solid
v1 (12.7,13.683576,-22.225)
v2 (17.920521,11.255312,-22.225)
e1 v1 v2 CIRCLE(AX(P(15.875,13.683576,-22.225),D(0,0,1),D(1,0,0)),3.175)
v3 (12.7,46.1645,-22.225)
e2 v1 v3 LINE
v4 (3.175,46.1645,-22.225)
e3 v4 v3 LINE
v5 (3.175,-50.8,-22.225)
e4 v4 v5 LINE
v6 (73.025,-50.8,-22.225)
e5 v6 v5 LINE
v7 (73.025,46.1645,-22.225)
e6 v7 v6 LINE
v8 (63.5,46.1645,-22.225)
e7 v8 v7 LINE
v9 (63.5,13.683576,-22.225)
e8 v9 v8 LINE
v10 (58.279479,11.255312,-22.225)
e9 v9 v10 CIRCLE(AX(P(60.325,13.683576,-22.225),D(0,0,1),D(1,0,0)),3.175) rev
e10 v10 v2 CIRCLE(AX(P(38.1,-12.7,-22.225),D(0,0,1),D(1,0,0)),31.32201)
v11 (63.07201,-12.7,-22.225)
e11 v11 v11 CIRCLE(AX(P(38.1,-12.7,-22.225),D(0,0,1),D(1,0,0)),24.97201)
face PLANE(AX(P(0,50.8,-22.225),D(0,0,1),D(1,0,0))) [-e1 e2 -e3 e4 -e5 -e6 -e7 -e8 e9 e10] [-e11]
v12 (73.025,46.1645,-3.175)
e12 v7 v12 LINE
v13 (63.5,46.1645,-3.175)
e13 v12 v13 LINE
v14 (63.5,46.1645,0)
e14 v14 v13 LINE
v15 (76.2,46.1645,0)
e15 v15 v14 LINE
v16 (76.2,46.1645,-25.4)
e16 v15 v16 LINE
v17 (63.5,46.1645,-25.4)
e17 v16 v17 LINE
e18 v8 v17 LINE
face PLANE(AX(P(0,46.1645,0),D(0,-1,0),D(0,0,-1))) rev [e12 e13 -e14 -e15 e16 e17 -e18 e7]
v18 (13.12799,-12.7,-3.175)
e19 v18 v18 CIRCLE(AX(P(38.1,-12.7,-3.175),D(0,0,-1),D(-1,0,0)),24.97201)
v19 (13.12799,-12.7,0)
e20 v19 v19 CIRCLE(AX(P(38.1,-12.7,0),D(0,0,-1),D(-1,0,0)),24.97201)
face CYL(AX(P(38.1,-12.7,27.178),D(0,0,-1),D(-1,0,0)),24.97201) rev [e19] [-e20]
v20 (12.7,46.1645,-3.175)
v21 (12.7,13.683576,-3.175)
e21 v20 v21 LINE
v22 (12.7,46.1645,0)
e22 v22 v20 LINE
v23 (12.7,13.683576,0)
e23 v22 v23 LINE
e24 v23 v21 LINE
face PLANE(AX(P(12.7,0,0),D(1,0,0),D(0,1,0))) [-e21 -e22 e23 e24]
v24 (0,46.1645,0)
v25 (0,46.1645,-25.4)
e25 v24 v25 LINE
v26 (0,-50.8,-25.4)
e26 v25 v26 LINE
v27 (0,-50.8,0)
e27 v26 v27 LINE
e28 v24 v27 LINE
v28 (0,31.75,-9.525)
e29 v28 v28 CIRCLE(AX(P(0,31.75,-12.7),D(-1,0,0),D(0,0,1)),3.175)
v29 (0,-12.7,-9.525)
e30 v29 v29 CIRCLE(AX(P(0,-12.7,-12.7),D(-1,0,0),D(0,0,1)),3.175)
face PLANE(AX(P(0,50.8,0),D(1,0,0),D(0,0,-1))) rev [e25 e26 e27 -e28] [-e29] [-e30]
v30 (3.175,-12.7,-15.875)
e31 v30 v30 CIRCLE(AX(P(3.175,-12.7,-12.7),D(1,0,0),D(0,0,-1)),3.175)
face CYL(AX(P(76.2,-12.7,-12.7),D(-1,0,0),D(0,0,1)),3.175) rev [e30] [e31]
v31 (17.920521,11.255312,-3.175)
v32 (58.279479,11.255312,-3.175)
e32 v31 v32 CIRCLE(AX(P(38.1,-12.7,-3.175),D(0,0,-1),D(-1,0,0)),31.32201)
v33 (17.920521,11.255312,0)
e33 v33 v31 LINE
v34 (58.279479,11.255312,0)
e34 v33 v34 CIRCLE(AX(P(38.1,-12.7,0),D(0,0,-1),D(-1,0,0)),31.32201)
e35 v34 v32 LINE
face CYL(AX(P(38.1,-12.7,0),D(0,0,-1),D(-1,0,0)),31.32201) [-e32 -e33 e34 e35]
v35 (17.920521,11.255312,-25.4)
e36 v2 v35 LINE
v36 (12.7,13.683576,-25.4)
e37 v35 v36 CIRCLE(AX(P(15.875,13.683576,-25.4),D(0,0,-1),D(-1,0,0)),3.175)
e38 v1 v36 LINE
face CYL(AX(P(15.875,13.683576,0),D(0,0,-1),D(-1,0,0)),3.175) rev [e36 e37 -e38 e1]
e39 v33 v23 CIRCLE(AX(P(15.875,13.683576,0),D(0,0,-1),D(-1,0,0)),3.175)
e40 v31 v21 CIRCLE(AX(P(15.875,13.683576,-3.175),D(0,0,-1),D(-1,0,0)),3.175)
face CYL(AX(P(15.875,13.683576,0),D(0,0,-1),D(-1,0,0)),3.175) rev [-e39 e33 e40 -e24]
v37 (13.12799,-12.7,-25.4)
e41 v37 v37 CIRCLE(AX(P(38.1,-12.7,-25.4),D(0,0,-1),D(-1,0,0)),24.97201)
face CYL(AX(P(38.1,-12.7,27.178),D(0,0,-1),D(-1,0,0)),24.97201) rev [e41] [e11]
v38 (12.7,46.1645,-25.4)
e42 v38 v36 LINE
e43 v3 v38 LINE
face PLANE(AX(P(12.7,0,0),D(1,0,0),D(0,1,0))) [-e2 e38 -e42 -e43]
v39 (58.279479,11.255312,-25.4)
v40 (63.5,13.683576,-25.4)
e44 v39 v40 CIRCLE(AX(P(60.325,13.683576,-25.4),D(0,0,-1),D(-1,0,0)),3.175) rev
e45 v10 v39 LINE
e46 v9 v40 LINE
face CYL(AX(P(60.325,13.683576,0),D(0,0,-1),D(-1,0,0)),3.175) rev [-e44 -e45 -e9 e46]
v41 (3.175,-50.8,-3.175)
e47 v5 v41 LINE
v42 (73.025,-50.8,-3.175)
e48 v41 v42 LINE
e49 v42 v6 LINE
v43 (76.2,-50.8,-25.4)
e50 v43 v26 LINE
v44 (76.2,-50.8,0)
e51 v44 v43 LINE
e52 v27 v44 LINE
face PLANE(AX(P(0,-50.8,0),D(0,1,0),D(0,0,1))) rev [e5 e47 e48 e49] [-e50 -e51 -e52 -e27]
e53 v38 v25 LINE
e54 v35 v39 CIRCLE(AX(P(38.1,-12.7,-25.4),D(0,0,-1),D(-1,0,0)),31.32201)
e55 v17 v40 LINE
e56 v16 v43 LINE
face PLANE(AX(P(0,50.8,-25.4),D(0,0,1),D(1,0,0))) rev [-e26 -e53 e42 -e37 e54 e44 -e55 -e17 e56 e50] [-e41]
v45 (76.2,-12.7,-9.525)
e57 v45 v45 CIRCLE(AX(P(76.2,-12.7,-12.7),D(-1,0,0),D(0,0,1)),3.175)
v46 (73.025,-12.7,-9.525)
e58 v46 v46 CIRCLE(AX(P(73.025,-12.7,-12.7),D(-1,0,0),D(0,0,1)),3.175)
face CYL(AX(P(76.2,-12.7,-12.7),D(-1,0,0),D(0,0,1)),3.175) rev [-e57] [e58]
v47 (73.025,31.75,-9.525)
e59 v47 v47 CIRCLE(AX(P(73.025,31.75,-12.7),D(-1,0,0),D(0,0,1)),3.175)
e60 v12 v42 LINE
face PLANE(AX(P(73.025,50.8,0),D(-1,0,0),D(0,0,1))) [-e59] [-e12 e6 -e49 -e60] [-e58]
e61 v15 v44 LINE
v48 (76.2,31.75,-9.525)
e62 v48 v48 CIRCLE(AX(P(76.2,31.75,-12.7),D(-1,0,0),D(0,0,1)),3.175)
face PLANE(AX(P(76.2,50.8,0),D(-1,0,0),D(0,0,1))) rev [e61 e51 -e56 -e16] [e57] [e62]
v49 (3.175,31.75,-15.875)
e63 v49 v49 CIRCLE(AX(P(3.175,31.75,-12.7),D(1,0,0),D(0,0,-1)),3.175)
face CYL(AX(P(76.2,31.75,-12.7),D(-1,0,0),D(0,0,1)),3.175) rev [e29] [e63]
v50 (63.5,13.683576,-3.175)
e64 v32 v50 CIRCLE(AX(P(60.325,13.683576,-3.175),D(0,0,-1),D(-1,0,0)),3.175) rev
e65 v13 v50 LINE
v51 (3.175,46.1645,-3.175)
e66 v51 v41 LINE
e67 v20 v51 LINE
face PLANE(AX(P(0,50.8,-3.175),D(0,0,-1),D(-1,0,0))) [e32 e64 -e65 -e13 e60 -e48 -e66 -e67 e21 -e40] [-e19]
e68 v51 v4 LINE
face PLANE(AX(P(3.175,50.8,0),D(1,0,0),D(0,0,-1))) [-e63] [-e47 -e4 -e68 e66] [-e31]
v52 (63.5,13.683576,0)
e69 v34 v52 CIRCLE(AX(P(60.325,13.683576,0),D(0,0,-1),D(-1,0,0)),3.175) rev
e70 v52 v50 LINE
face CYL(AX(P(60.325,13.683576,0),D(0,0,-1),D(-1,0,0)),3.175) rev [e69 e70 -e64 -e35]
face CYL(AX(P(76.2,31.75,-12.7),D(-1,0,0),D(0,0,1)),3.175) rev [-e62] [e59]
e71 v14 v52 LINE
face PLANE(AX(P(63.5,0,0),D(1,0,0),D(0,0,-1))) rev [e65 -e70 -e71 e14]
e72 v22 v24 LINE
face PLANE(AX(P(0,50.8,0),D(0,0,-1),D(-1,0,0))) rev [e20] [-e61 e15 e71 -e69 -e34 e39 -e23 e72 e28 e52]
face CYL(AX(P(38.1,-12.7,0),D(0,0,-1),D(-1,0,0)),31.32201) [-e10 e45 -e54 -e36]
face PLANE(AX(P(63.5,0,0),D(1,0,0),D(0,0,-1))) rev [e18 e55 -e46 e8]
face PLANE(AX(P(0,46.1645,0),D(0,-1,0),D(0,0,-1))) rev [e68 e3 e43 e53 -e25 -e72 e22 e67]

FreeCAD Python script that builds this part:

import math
import FreeCAD as App
import Part
import Sketcher
from FreeCAD import Vector
Q = App.Units.Quantity


def add_polygon(sketch, points):
    """Adds a closed chain of lines whose ends are joined by coincident constraints."""
    first, n = sketch.GeometryCount, len(points)
    for a, b in zip(points, points[1:] + points[:1]):
        sketch.addGeometry(Part.LineSegment(App.Vector(*a, 0), App.Vector(*b, 0)), False)
    for i in range(n):
        sketch.addConstraint(Sketcher.Constraint("Coincident", first + i, 2, first + (i + 1) % n, 1))

doc = App.newDocument("Part")
body = doc.addObject("PartDesign::Body", "Body")

sketch1 = body.newObject("Sketcher::SketchObject", "Sketch")
sketch1.AttachmentSupport = (doc.getObject("XZ_Plane"), [""])
sketch1.MapMode = "FlatFace"
add_polygon(sketch1, [(0, -25), (0, 0), (76, 0), (76, -25)])
add_polygon(sketch1, [(73, -3), (3, -3), (3, -22), (73, -22)])
sketch1.addConstraint(Sketcher.Constraint("Vertical", 0))
sketch1.addConstraint(Sketcher.Constraint("Horizontal", 1))
sketch1.addConstraint(Sketcher.Constraint("Vertical", 2))
sketch1.addConstraint(Sketcher.Constraint("Horizontal", 3))
sketch1.addConstraint(Sketcher.Constraint("Horizontal", 4))
sketch1.addConstraint(Sketcher.Constraint("Vertical", 5))
sketch1.addConstraint(Sketcher.Constraint("Horizontal", 6))
sketch1.addConstraint(Sketcher.Constraint("Vertical", 7))
sketch1.addConstraint(Sketcher.Constraint("Coincident", 0, 2, -1, 1))
sketch1.addConstraint(Sketcher.Constraint("DistanceX", 1, 1, 1, 2, Q("3 in")))
sketch1.addConstraint(Sketcher.Constraint("DistanceY", 0, 1, 0, 2, Q("1 in")))
sketch1.addConstraint(Sketcher.Constraint("DistanceX", 4, 2, 4, 1, Q("2.75 in")))
sketch1.addConstraint(Sketcher.Constraint("DistanceY", 5, 2, 5, 1, Q("0.75 in")))
sketch1.addConstraint(Sketcher.Constraint("DistanceX", -1, 1, 4, 2, Q("0.125 in")))
sketch1.addConstraint(Sketcher.Constraint("DistanceY", 4, 2, -1, 1, Q("0.125 in")))
pad1 = body.newObject("PartDesign::Pad", "Pad")
pad1.Profile = sketch1
pad1.Length = Q("4 in")
pad1.Midplane = True

sketch2 = body.newObject("Sketcher::SketchObject", "Sketch001")
sketch2.AttachmentSupport = (doc.getObject("XY_Plane"), [""])
sketch2.MapMode = "FlatFace"
sketch2.AttachmentOffset = App.Placement(Vector(0, 0, -1 * 25.4), App.Rotation())
sketch2.addGeometry(Part.Circle(Vector(38, -13, 0), Vector(0, 0, 1), 25), False)
sketch2.addConstraint(Sketcher.Constraint("Diameter", 0, Q("1.9663 in")))
sketch2.addConstraint(Sketcher.Constraint("DistanceX", -1, 1, 0, 3, Q("1.5 in")))
sketch2.addConstraint(Sketcher.Constraint("DistanceY", 0, 3, -1, 1, Q("0.5 in")))
pocket1 = body.newObject("PartDesign::Pocket", "Pocket")
pocket1.Profile = sketch2
pocket1.Length = Q("2.07 in")
pocket1.Reversed = True

sketch3 = body.newObject("Sketcher::SketchObject", "Sketch002")
sketch3.AttachmentSupport = (doc.getObject("XY_Plane"), [""])
sketch3.MapMode = "FlatFace"
sketch3.AttachmentOffset = App.Placement(Vector(0, 0, -1 * 25.4), App.Rotation())
sketch3.addGeometry(Part.LineSegment(Vector(0, 50.8, 0), Vector(76.2, 50.8, 0)), False)
sketch3.addGeometry(Part.LineSegment(Vector(76.2, 50.8, 0), Vector(76.2, 46.2, 0)), False)
sketch3.addGeometry(Part.LineSegment(Vector(76.2, 46.2, 0), Vector(63.5, 46.2, 0)), False)
sketch3.addGeometry(Part.LineSegment(Vector(63.5, 46.2, 0), Vector(63.5, 13.7, 0)), False)
sketch3.addGeometry(Part.ArcOfCircle(Part.Circle(Vector(60.3, 13.7, 0), Vector(0, 0, 1), 3.2), math.radians(-130), math.radians(0)), False)
sketch3.addGeometry(Part.ArcOfCircle(Part.Circle(Vector(38.1, -12.7, 0), Vector(0, 0, 1), 31.3), math.radians(50), math.radians(130)), False)
sketch3.addGeometry(Part.ArcOfCircle(Part.Circle(Vector(15.9, 13.7, 0), Vector(0, 0, 1), 3.2), math.radians(180), math.radians(310)), False)
sketch3.addGeometry(Part.LineSegment(Vector(12.7, 13.7, 0), Vector(12.7, 46.2, 0)), False)
sketch3.addGeometry(Part.LineSegment(Vector(12.7, 46.2, 0), Vector(0, 46.2, 0)), False)
sketch3.addGeometry(Part.LineSegment(Vector(0, 46.2, 0), Vector(0, 50.8, 0)), False)
sketch3.addConstraint(Sketcher.Constraint("Coincident", 0, 2, 1, 1))
sketch3.addConstraint(Sketcher.Constraint("Coincident", 1, 2, 2, 1))
sketch3.addConstraint(Sketcher.Constraint("Coincident", 2, 2, 3, 1))
sketch3.addConstraint(Sketcher.Constraint("Tangent", 3, 2, 4, 2))
sketch3.addConstraint(Sketcher.Constraint("Tangent", 4, 1, 5, 1))
sketch3.addConstraint(Sketcher.Constraint("Tangent", 5, 2, 6, 2))
sketch3.addConstraint(Sketcher.Constraint("Tangent", 6, 1, 7, 1))
sketch3.addConstraint(Sketcher.Constraint("Coincident", 7, 2, 8, 1))
sketch3.addConstraint(Sketcher.Constraint("Coincident", 8, 2, 9, 1))
sketch3.addConstraint(Sketcher.Constraint("Coincident", 9, 2, 0, 1))
sketch3.addConstraint(Sketcher.Constraint("Horizontal", 0))
sketch3.addConstraint(Sketcher.Constraint("Vertical", 1))
sketch3.addConstraint(Sketcher.Constraint("Horizontal", 2))
sketch3.addConstraint(Sketcher.Constraint("Vertical", 3))
sketch3.addConstraint(Sketcher.Constraint("Vertical", 7))
sketch3.addConstraint(Sketcher.Constraint("Horizontal", 8))
sketch3.addConstraint(Sketcher.Constraint("Vertical", 9))
sketch3.addConstraint(Sketcher.Constraint("Equal", 4, 6))
sketch3.addConstraint(Sketcher.Constraint("PointOnObject", 8, 2, -2))
sketch3.addConstraint(Sketcher.Constraint("Horizontal", 4, 3, 6, 3))
sketch3.addConstraint(Sketcher.Constraint("Horizontal", 2, 2, 7, 2))
sketch3.addConstraint(Sketcher.Constraint("Equal", 2, 8))
sketch3.addConstraint(Sketcher.Constraint("DistanceX", 0, 1, 0, 2, Q("3 in")))
sketch3.addConstraint(Sketcher.Constraint("DistanceX", 2, 2, 2, 1, Q("0.5 in")))
sketch3.addConstraint(Sketcher.Constraint("DistanceY", -1, 1, 0, 2, Q("2 in")))
sketch3.addConstraint(Sketcher.Constraint("Radius", 4, Q("0.125 in")))
sketch3.addConstraint(Sketcher.Constraint("DistanceY", 5, 3, -1, 1, Q("0.5 in")))
sketch3.addConstraint(Sketcher.Constraint("DistanceY", 1, 2, 1, 1, Q("0.1825 in")))
sketch3.addConstraint(Sketcher.Constraint("Radius", 5, 31.32201))
pocket2 = body.newObject("PartDesign::Pocket", "Pocket001")
pocket2.Profile = sketch3
pocket2.Type = "ThroughAll"
pocket2.Reversed = True

sketch4 = body.newObject("Sketcher::SketchObject", "Sketch003")
sketch4.AttachmentSupport = (doc.getObject("YZ_Plane"), [""])
sketch4.MapMode = "FlatFace"
sketch4.addGeometry(Part.Circle(Vector(31.8, -12.7, 0), Vector(0, 0, 1), 3.2), False)
sketch4.addConstraint(Sketcher.Constraint("Diameter", 0, Q("0.25 in")))
sketch4.addConstraint(Sketcher.Constraint("DistanceY", 0, 3, -1, 1, Q("0.5 in")))
sketch4.addConstraint(Sketcher.Constraint("DistanceX", -1, 1, 0, 3, Q("1.25 in")))
pocket3 = body.newObject("PartDesign::Pocket", "Pocket002")
pocket3.Profile = sketch4
pocket3.Type = "ThroughAll"
pocket3.Reversed = True

sketch5 = body.newObject("Sketcher::SketchObject", "Sketch004")
sketch5.AttachmentSupport = (doc.getObject("YZ_Plane"), [""])
sketch5.MapMode = "FlatFace"
sketch5.addGeometry(Part.Circle(Vector(-12.7, -12.7, 0), Vector(0, 0, 1), 3.2), False)
sketch5.addConstraint(Sketcher.Constraint("Diameter", 0, Q("0.25 in")))
sketch5.addConstraint(Sketcher.Constraint("DistanceX", 0, 3, -1, 1, Q("0.5 in")))
sketch5.addConstraint(Sketcher.Constraint("DistanceY", 0, 3, -1, 1, Q("0.5 in")))
pocket4 = body.newObject("PartDesign::Pocket", "Pocket003")
pocket4.Profile = sketch5
pocket4.Type = "ThroughAll"
pocket4.Reversed = True

doc.recompute()
